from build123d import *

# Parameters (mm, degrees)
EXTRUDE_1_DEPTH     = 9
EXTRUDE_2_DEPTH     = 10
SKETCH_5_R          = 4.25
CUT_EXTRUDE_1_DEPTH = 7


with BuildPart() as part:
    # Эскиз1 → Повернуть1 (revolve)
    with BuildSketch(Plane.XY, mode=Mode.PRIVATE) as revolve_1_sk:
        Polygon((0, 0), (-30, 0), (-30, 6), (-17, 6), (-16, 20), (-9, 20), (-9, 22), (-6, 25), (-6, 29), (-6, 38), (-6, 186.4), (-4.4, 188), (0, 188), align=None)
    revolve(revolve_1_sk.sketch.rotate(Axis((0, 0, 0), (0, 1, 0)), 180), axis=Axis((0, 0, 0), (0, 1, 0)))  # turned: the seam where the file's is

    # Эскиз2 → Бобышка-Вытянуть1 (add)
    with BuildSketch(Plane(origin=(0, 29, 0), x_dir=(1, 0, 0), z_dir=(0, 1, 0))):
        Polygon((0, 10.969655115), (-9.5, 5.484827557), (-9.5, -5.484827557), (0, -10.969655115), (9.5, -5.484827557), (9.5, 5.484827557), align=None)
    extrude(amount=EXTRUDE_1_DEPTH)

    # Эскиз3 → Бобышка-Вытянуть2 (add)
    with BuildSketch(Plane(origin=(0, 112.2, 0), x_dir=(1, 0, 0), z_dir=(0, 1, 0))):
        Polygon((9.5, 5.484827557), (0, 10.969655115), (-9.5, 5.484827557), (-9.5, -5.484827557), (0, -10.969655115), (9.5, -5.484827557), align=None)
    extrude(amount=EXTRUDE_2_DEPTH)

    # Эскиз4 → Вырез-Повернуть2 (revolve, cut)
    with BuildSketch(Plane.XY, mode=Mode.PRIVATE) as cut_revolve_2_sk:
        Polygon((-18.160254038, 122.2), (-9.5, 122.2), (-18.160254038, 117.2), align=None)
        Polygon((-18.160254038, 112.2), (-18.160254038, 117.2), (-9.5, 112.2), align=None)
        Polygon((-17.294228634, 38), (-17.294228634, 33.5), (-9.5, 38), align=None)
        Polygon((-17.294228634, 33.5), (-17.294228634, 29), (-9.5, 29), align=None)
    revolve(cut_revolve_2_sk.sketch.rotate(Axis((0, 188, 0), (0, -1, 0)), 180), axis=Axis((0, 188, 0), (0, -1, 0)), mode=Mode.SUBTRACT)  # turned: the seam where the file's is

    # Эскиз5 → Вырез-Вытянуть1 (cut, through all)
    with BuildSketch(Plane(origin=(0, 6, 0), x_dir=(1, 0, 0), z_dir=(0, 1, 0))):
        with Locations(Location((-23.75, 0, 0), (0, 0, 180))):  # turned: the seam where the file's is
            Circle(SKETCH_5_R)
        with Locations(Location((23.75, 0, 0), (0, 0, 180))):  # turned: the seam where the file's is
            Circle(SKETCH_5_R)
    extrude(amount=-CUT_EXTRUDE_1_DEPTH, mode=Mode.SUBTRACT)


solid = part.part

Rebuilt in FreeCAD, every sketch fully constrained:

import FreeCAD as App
import Part
import Sketcher
Q = App.Units.Quantity


def add_polygon(sketch, points):
    """Adds a closed chain of lines whose ends are joined by coincident constraints."""
    first, n = sketch.GeometryCount, len(points)
    for a, b in zip(points, points[1:] + points[:1]):
        sketch.addGeometry(Part.LineSegment(App.Vector(*a, 0), App.Vector(*b, 0)), False)
    for i in range(n):
        sketch.addConstraint(Sketcher.Constraint("Coincident", first + i, 2, first + (i + 1) % n, 1))

doc = App.newDocument("Part")
body = doc.addObject("PartDesign::Body", "Body")

# Sketch on XY plane
sketch1 = body.newObject("Sketcher::SketchObject", "Sketch")
sketch1.AttachmentSupport = (doc.getObject("XY_Plane"), [""])
sketch1.MapMode = "FlatFace"
add_polygon(sketch1, [(-30, 0), (0, 0), (0, 188), (-4.4, 188), (-6, 186.4), (-6, 25), (-9, 22), (-9, 20), (-16, 20), (-17, 6), (-30, 6)])  # lines 0-10
sketch1.addConstraint([
    Sketcher.Constraint("Horizontal", 0),
    Sketcher.Constraint("Vertical", 1),
    Sketcher.Constraint("Horizontal", 2),
    Sketcher.Constraint("Vertical", 4),
    Sketcher.Constraint("Vertical", 6),
    Sketcher.Constraint("Horizontal", 7),
    Sketcher.Constraint("Horizontal", 9),
    Sketcher.Constraint("Vertical", 10),
    Sketcher.Constraint("Coincident", 0, 2, -1, 1),
    Sketcher.Constraint("Parallel", 3, 5),
    Sketcher.Constraint("DistanceX", 0, 1, 0, 2, 30.0),
    Sketcher.Constraint("DistanceX", 7, 2, 7, 1, 7.0),
    Sketcher.Constraint("DistanceX", 9, 2, 9, 1, 13.0),
    Sketcher.Constraint("DistanceY", 1, 1, 1, 2, 188.0),
    Sketcher.Constraint("DistanceY", 6, 2, 6, 1, 2.0),
    Sketcher.Constraint("DistanceY", 10, 2, 10, 1, 6.0),
    Sketcher.Constraint("Angle", 3, Q("-135 deg")),
    Sketcher.Constraint("DistanceX", 2, 2, 2, 1, 4.4),
    Sketcher.Constraint("DistanceY", 4, 2, 4, 1, 161.4),
    Sketcher.Constraint("DistanceX", 3, 2, -1, 1, 6.0),
    Sketcher.Constraint("DistanceX", 5, 2, -1, 1, 9.0),
])
revolution = body.newObject("PartDesign::Revolution", "Revolution")
revolution.Profile = sketch1
revolution.ReferenceAxis = (sketch1, ["V_Axis"])
revolution.Angle = 360

# Sketch on XZ plane
sketch2 = body.newObject("Sketcher::SketchObject", "Sketch001")
sketch2.AttachmentSupport = (doc.getObject("XZ_Plane"), [""])
sketch2.MapMode = "FlatFace"
sketch2.AttachmentOffset = App.Placement(App.Vector(0, 0, -29), App.Rotation())
add_polygon(sketch2, [(0, -11), (-10, -5), (-10, 5), (0, 11), (10, 5), (10, -5)])  # lines 0-5
sketch2.addConstraint([
    Sketcher.Constraint("Vertical", 1),
    Sketcher.Constraint("Vertical", 4),
    Sketcher.Constraint("Symmetric", 0, 2, 3, 2, -1, 1),
    Sketcher.Constraint("Symmetric", 2, 2, 5, 2, -1, 1),
    Sketcher.Constraint("PointOnObject", 2, 2, -2),
    Sketcher.Constraint("Parallel", 2, 5),
    Sketcher.Constraint("Horizontal", 1, 2, 3, 2),
    Sketcher.Constraint("Angle", 0, Q("150 deg")),
    Sketcher.Constraint("DistanceX", 1, 2, 3, 2, 19.0),
    Sketcher.Constraint("DistanceY", 1, 1, 1, 2, 10.969655),
])
pad1 = body.newObject("PartDesign::Pad", "Pad")
pad1.Profile = sketch2
pad1.Length = 9
pad1.Reversed = True

# Sketch on XZ plane
sketch3 = body.newObject("Sketcher::SketchObject", "Sketch002")
sketch3.AttachmentSupport = (doc.getObject("XZ_Plane"), [""])
sketch3.MapMode = "FlatFace"
sketch3.AttachmentOffset = App.Placement(App.Vector(0, 0, -112.2), App.Rotation())
add_polygon(sketch3, [(10, -5), (0, -11), (-10, -5), (-10, 5), (0, 11), (10, 5)])  # lines 0-5
sketch3.addConstraint([
    Sketcher.Constraint("Vertical", 2),
    Sketcher.Constraint("Vertical", 5),
    Sketcher.Constraint("Symmetric", 0, 2, 3, 2, -1, 1),
    Sketcher.Constraint("Symmetric", 1, 2, 4, 2, -1, 1),
    Sketcher.Constraint("PointOnObject", 0, 2, -2),
    Sketcher.Constraint("Parallel", 0, 3),
    Sketcher.Constraint("Horizontal", 2, 2, 4, 2),
    Sketcher.Constraint("Angle", 0, Q("-150 deg")),
    Sketcher.Constraint("DistanceX", 2, 2, 4, 2, 19.0),
    Sketcher.Constraint("DistanceY", 2, 1, 2, 2, 10.969655),
])
pad2 = body.newObject("PartDesign::Pad", "Pad001")
pad2.Profile = sketch3
pad2.Length = 10
pad2.Reversed = True

# Sketch on XY plane
sketch4 = body.newObject("Sketcher::SketchObject", "Sketch003")
sketch4.AttachmentSupport = (doc.getObject("XY_Plane"), [""])
sketch4.MapMode = "FlatFace"
add_polygon(sketch4, [(-9.5, 122.2), (-18.2, 122.2), (-18.2, 117.2)])  # lines 0-2
add_polygon(sketch4, [(-18.2, 117.2), (-18.2, 112.2), (-9.5, 112.2)])  # lines 3-5
add_polygon(sketch4, [(-17.3, 38), (-17.3, 33.5), (-9.5, 38)])  # lines 6-8
add_polygon(sketch4, [(-17.3, 33.5), (-17.3, 29), (-9.5, 29)])  # lines 9-11
sketch4.addConstraint([
    Sketcher.Constraint("Horizontal", 0),
    Sketcher.Constraint("Vertical", 1),
    Sketcher.Constraint("Vertical", 3),
    Sketcher.Constraint("Horizontal", 4),
    Sketcher.Constraint("Vertical", 6),
    Sketcher.Constraint("Horizontal", 8),
    Sketcher.Constraint("Vertical", 9),
    Sketcher.Constraint("Horizontal", 10),
    Sketcher.Constraint("Coincident", 5, 2, 1, 2),
    Sketcher.Constraint("Coincident", 11, 2, 6, 2),
    Sketcher.Constraint("Parallel", 2, 7),
    Sketcher.Constraint("Parallel", 5, 11),
    Sketcher.Constraint("Vertical", 2, 2, 4, 2),
    Sketcher.Constraint("Vertical", 4, 2, 7, 2),
    Sketcher.Constraint("Vertical", 7, 2, 10, 2),
    Sketcher.Constraint("Equal", 1, 3),
    Sketcher.Constraint("DistanceY", 1, 2, 1, 1, 5.0),
    Sketcher.Constraint("Angle", 2, Q("30 deg")),
    Sketcher.Constraint("Distance", 7, 9.0),
    Sketcher.Constraint("DistanceY", -1, 1, 7, 2, 38.0),
    Sketcher.Constraint("DistanceY", -1, 1, 0, 2, 122.2),
    Sketcher.Constraint("DistanceX", 2, 2, -1, 1, 9.5),
])
groove = body.newObject("PartDesign::Groove", "Groove")
groove.Profile = sketch4
groove.ReferenceAxis = (sketch4, ["V_Axis"])
groove.Angle = 360

# Sketch on XZ plane
sketch5 = body.newObject("Sketcher::SketchObject", "Sketch004")
sketch5.AttachmentSupport = (doc.getObject("XZ_Plane"), [""])
sketch5.MapMode = "FlatFace"
sketch5.AttachmentOffset = App.Placement(App.Vector(0, 0, -6), App.Rotation())
sketch5.addGeometry([
    Part.Circle(App.Vector(-23.8, 0, 0), App.Vector(0, 0, 1), 4.2),
    Part.Circle(App.Vector(23.8, 0, 0), App.Vector(0, 0, 1), 4.2),
], False)
sketch5.addConstraint([
    Sketcher.Constraint("Equal", 0, 1),
    Sketcher.Constraint("Symmetric", 0, 3, 1, 3, -1, 1),
    Sketcher.Constraint("PointOnObject", 0, 3, -1),
    Sketcher.Constraint("Diameter", 0, 8.5),
    Sketcher.Constraint("DistanceX", 0, 3, 1, 3, 47.5),
])
pocket1 = body.newObject("PartDesign::Pocket", "Pocket")
pocket1.Profile = sketch5
pocket1.Type = "ThroughAll"
pocket1.Reversed = True

doc.recompute()
